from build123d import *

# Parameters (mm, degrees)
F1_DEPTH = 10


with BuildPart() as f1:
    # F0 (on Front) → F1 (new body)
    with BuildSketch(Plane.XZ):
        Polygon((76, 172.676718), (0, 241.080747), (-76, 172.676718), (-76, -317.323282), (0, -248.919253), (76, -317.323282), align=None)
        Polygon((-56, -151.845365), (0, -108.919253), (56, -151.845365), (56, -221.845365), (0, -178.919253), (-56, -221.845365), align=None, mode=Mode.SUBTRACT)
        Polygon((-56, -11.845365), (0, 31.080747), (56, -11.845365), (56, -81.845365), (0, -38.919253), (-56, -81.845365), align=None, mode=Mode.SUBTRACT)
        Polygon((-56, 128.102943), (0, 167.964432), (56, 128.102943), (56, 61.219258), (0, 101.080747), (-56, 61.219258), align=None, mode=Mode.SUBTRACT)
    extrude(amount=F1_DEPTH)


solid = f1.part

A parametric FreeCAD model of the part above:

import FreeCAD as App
import Part
import Sketcher
from FreeCAD import Vector
Q = App.Units.Quantity

doc = App.newDocument("Part")
body = doc.addObject("PartDesign::Body", "Body")

# Sketch on XZ plane
sketch1 = body.newObject("Sketcher::SketchObject", "Sketch")
sketch1.AttachmentSupport = (doc.getObject("XZ_Plane"), [""])
sketch1.MapMode = "FlatFace"
sketch1.addGeometry(Part.LineSegment(Vector(76, 173, 0), Vector(0, 241, 0)), False)
sketch1.addGeometry(Part.LineSegment(Vector(0, 241, 0), Vector(-76, 173, 0)), False)
sketch1.addGeometry(Part.LineSegment(Vector(-76, 173, 0), Vector(-76, -317, 0)), False)
sketch1.addGeometry(Part.LineSegment(Vector(-76, -317, 0), Vector(0, -249, 0)), False)
sketch1.addGeometry(Part.LineSegment(Vector(0, -249, 0), Vector(76, -317, 0)), False)
sketch1.addGeometry(Part.LineSegment(Vector(76, -317, 0), Vector(76, 173, 0)), False)
sketch1.addGeometry(Part.LineSegment(Vector(-56, -222, 0), Vector(-56, -152, 0)), False)
sketch1.addGeometry(Part.LineSegment(Vector(-56, -152, 0), Vector(0, -109, 0)), False)
sketch1.addGeometry(Part.LineSegment(Vector(0, -109, 0), Vector(56, -152, 0)), False)
sketch1.addGeometry(Part.LineSegment(Vector(56, -152, 0), Vector(56, -222, 0)), False)
sketch1.addGeometry(Part.LineSegment(Vector(56, -222, 0), Vector(0, -179, 0)), False)
sketch1.addGeometry(Part.LineSegment(Vector(0, -179, 0), Vector(-56, -222, 0)), False)
sketch1.addGeometry(Part.LineSegment(Vector(-56, -82, 0), Vector(-56, -12, 0)), False)
sketch1.addGeometry(Part.LineSegment(Vector(-56, -12, 0), Vector(0, 31, 0)), False)
sketch1.addGeometry(Part.LineSegment(Vector(0, 31, 0), Vector(56, -12, 0)), False)
sketch1.addGeometry(Part.LineSegment(Vector(56, -12, 0), Vector(56, -82, 0)), False)
sketch1.addGeometry(Part.LineSegment(Vector(56, -82, 0), Vector(0, -39, 0)), False)
sketch1.addGeometry(Part.LineSegment(Vector(0, -39, 0), Vector(-56, -82, 0)), False)
sketch1.addGeometry(Part.LineSegment(Vector(-56, 61, 0), Vector(-56, 128, 0)), False)
sketch1.addGeometry(Part.LineSegment(Vector(-56, 128, 0), Vector(0, 168, 0)), False)
sketch1.addGeometry(Part.LineSegment(Vector(0, 168, 0), Vector(56, 128, 0)), False)
sketch1.addGeometry(Part.LineSegment(Vector(56, 128, 0), Vector(56, 61, 0)), False)
sketch1.addGeometry(Part.LineSegment(Vector(56, 61, 0), Vector(0, 101, 0)), False)
sketch1.addGeometry(Part.LineSegment(Vector(0, 101, 0), Vector(-56, 61, 0)), False)
sketch1.addConstraint(Sketcher.Constraint("Coincident", 0, 2, 1, 1))
sketch1.addConstraint(Sketcher.Constraint("Coincident", 1, 2, 2, 1))
sketch1.addConstraint(Sketcher.Constraint("Coincident", 2, 2, 3, 1))
sketch1.addConstraint(Sketcher.Constraint("Coincident", 3, 2, 4, 1))
sketch1.addConstraint(Sketcher.Constraint("Coincident", 4, 2, 5, 1))
sketch1.addConstraint(Sketcher.Constraint("Coincident", 5, 2, 0, 1))
sketch1.addConstraint(Sketcher.Constraint("Coincident", 6, 2, 7, 1))
sketch1.addConstraint(Sketcher.Constraint("Coincident", 7, 2, 8, 1))
sketch1.addConstraint(Sketcher.Constraint("Coincident", 8, 2, 9, 1))
sketch1.addConstraint(Sketcher.Constraint("Coincident", 9, 2, 10, 1))
sketch1.addConstraint(Sketcher.Constraint("Coincident", 10, 2, 11, 1))
sketch1.addConstraint(Sketcher.Constraint("Coincident", 11, 2, 6, 1))
sketch1.addConstraint(Sketcher.Constraint("Coincident", 12, 2, 13, 1))
sketch1.addConstraint(Sketcher.Constraint("Coincident", 13, 2, 14, 1))
sketch1.addConstraint(Sketcher.Constraint("Coincident", 14, 2, 15, 1))
sketch1.addConstraint(Sketcher.Constraint("Coincident", 15, 2, 16, 1))
sketch1.addConstraint(Sketcher.Constraint("Coincident", 16, 2, 17, 1))
sketch1.addConstraint(Sketcher.Constraint("Coincident", 17, 2, 12, 1))
sketch1.addConstraint(Sketcher.Constraint("Coincident", 18, 2, 19, 1))
sketch1.addConstraint(Sketcher.Constraint("Coincident", 19, 2, 20, 1))
sketch1.addConstraint(Sketcher.Constraint("Coincident", 20, 2, 21, 1))
sketch1.addConstraint(Sketcher.Constraint("Coincident", 21, 2, 22, 1))
sketch1.addConstraint(Sketcher.Constraint("Coincident", 22, 2, 23, 1))
sketch1.addConstraint(Sketcher.Constraint("Coincident", 23, 2, 18, 1))
sketch1.addConstraint(Sketcher.Constraint("Vertical", 2))
sketch1.addConstraint(Sketcher.Constraint("Vertical", 5))
sketch1.addConstraint(Sketcher.Constraint("Vertical", 6))
sketch1.addConstraint(Sketcher.Constraint("Vertical", 9))
sketch1.addConstraint(Sketcher.Constraint("Vertical", 12))
sketch1.addConstraint(Sketcher.Constraint("Vertical", 15))
sketch1.addConstraint(Sketcher.Constraint("Vertical", 18))
sketch1.addConstraint(Sketcher.Constraint("Vertical", 21))
sketch1.addConstraint(Sketcher.Constraint("Symmetric", 2, 2, 4, 2, -2))
sketch1.addConstraint(Sketcher.Constraint("Symmetric", 6, 2, 8, 2, -2))
sketch1.addConstraint(Sketcher.Constraint("Symmetric", 12, 2, 14, 2, -2))
sketch1.addConstraint(Sketcher.Constraint("Symmetric", 18, 2, 20, 2, -2))
sketch1.addConstraint(Sketcher.Constraint("PointOnObject", 0, 2, -2))
sketch1.addConstraint(Sketcher.Constraint("PointOnObject", 3, 2, -2))
sketch1.addConstraint(Sketcher.Constraint("PointOnObject", 7, 2, -2))
sketch1.addConstraint(Sketcher.Constraint("PointOnObject", 10, 2, -2))
sketch1.addConstraint(Sketcher.Constraint("PointOnObject", 13, 2, -2))
sketch1.addConstraint(Sketcher.Constraint("PointOnObject", 16, 2, -2))
sketch1.addConstraint(Sketcher.Constraint("PointOnObject", 19, 2, -2))
sketch1.addConstraint(Sketcher.Constraint("PointOnObject", 22, 2, -2))
sketch1.addConstraint(Sketcher.Constraint("Parallel", 1, 3))
sketch1.addConstraint(Sketcher.Constraint("Parallel", 0, 4))
sketch1.addConstraint(Sketcher.Constraint("Parallel", 8, 10))
sketch1.addConstraint(Sketcher.Constraint("Parallel", 7, 11))
sketch1.addConstraint(Sketcher.Constraint("Parallel", 11, 13))
sketch1.addConstraint(Sketcher.Constraint("Parallel", 14, 16))
sketch1.addConstraint(Sketcher.Constraint("Parallel", 13, 17))
sketch1.addConstraint(Sketcher.Constraint("Parallel", 20, 22))
sketch1.addConstraint(Sketcher.Constraint("Parallel", 19, 23))
sketch1.addConstraint(Sketcher.Constraint("Vertical", 11, 2, 12, 2))
sketch1.addConstraint(Sketcher.Constraint("Vertical", 17, 2, 18, 2))
sketch1.addConstraint(Sketcher.Constraint("Equal", 9, 12))
sketch1.addConstraint(Sketcher.Constraint("DistanceY", 2, 2, 2, 1, Q("490 mm")))
sketch1.addConstraint(Sketcher.Constraint("DistanceY", 6, 1, 6, 2, Q("70 mm")))
sketch1.addConstraint(Sketcher.Constraint("DistanceX", 1, 2, -1, 1, Q("76 mm")))
sketch1.addConstraint(Sketcher.Constraint("DistanceX", 6, 2, -1, 1, Q("56 mm")))
sketch1.addConstraint(Sketcher.Constraint("DistanceY", 3, 2, 7, 2, Q("140 mm")))
sketch1.addConstraint(Sketcher.Constraint("DistanceY", 6, 2, 12, 2, Q("140 mm")))
sketch1.addConstraint(Sketcher.Constraint("DistanceY", 13, 2, 22, 2, Q("70 mm")))
sketch1.addConstraint(Sketcher.Constraint("Distance", 0, Q("102.250238 mm")))
sketch1.addConstraint(Sketcher.Constraint("DistanceY", 18, 1, 18, 2, Q("66.883685 mm")))
sketch1.addConstraint(Sketcher.Constraint("DistanceY", -1, 1, 1, 2, Q("172.676718 mm")))
sketch1.addConstraint(Sketcher.Constraint("DistanceY", -1, 1, 21, 2, Q("61.219258 mm")))
sketch1.addConstraint(Sketcher.Constraint("DistanceY", 3, 2, 6, 2, Q("97.073888 mm")))
pad1 = body.newObject("PartDesign::Pad", "Pad")
pad1.Profile = sketch1
pad1.Length = 10

doc.recompute()
